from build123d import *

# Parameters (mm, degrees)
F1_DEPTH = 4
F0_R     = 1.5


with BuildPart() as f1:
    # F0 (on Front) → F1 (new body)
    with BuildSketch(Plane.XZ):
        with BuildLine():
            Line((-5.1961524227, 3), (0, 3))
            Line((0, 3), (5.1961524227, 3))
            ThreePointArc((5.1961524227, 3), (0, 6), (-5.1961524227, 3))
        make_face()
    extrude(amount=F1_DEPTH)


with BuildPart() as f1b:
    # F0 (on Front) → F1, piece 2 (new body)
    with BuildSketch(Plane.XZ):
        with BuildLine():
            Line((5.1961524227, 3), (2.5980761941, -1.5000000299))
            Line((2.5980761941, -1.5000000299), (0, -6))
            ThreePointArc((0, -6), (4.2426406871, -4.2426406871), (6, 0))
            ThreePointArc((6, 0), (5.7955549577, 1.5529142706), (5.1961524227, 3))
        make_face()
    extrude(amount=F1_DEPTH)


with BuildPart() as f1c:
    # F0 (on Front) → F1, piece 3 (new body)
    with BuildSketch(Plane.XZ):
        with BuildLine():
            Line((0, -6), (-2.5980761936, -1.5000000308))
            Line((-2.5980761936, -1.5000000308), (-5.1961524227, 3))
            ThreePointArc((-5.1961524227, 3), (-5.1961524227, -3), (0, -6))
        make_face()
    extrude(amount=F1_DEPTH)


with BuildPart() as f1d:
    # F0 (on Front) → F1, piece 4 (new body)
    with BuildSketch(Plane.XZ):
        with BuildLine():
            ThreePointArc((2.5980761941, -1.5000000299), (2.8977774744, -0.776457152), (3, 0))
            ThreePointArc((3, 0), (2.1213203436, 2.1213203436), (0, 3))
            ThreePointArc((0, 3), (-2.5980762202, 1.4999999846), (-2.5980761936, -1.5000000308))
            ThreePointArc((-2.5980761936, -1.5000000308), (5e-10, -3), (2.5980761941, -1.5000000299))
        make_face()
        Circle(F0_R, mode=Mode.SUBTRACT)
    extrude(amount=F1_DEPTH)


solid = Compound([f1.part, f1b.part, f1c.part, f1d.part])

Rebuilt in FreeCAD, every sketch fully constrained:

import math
import FreeCAD as App
import Part
import Sketcher

V = App.Vector
Q = App.Units.Quantity

doc = App.newDocument("Part")
params = doc.addObject("Spreadsheet::Sheet", "Params")
for row, (alias, value) in enumerate([
    ("sketch1_radius", "6 mm"),
    ("pad1_length", "4 mm"),
    ("sketch2_radius", "6 mm"),
    ("pad2_length", "4 mm"),
    ("sketch3_radius", "6 mm"),
    ("pad3_length", "4 mm"),
    ("sketch4_diameter", "3 mm"),
    ("sketch4_radius", "3 mm"),
    ("pad4_length", "4 mm"),
], start=1):
    params.set(f"A{row}", alias)
    params.set(f"B{row}", "=" + value)
    params.setAlias(f"B{row}", alias)

body = doc.addObject("PartDesign::Body", "Body")

sketch1 = body.newObject("Sketcher::SketchObject", "Sketch")
sketch1.AttachmentSupport = (doc.getObject("XZ_Plane"), [""])
sketch1.MapMode = "FlatFace"
sketch1.addGeometry([
    Part.LineSegment(V(-5, 3, 0), V(5, 3, 0)),
    Part.ArcOfCircle(Part.Circle(V(0, 0, 0), V(0, 0, 1), 6), math.radians(30), math.radians(150)),
], False)
sketch1.addConstraint([
    Sketcher.Constraint("Coincident", 0, 1, 1, 2),
    Sketcher.Constraint("Coincident", 1, 1, 0, 2),
    Sketcher.Constraint("Horizontal", 0),
    Sketcher.Constraint("Coincident", 1, 3, -1, 1),
    Sketcher.Constraint("Radius", 1, Q("6 mm")),
    Sketcher.Constraint("DistanceY", -1, 1, 0, 1, Q("3 mm")),
])
sketch1.setExpression("Constraints[4]", "Params.sketch1_radius")
pad1 = body.newObject("PartDesign::Pad", "Pad")
pad1.Profile = sketch1
pad1.setExpression("Length", "Params.pad1_length")
body2 = doc.addObject("PartDesign::Body", "Body001")

sketch2 = body2.newObject("Sketcher::SketchObject", "Sketch001")
sketch2.AttachmentSupport = (doc.getObject("XZ_Plane001"), [""])
sketch2.MapMode = "FlatFace"
sketch2.addGeometry([
    Part.LineSegment(V(5.2, 3, 0), V(2.6, -1.5, 0)),
    Part.LineSegment(V(2.6, -1.5, 0), V(0, -6, 0)),
    Part.ArcOfCircle(Part.Circle(V(0, 0, 0), V(0, 0, 1), 6), math.radians(-90), math.radians(0)),
    Part.ArcOfCircle(Part.Circle(V(0, 0, 0), V(0, 0, 1), 6), math.radians(0), math.radians(30)),
], False)
sketch2.addConstraint([
    Sketcher.Constraint("Coincident", 0, 2, 1, 1),
    Sketcher.Constraint("Coincident", 1, 2, 2, 1),
    Sketcher.Constraint("Tangent", 2, 2, 3, 1),
    Sketcher.Constraint("Coincident", 3, 2, 0, 1),
    Sketcher.Constraint("Coincident", 2, 3, -1, 1),
    Sketcher.Constraint("Equal", 2, 3),
    Sketcher.Constraint("PointOnObject", 1, 2, -2),
    Sketcher.Constraint("PointOnObject", 2, 2, -1),
    Sketcher.Constraint("Parallel", 0, 1),
    Sketcher.Constraint("Equal", 0, 1),
    Sketcher.Constraint("Radius", 2, Q("6 mm")),
    Sketcher.Constraint("Angle", 0, Q("-120 deg")),
])
sketch2.setExpression("Constraints[10]", "Params.sketch2_radius")
pad2 = body2.newObject("PartDesign::Pad", "Pad001")
pad2.Profile = sketch2
pad2.setExpression("Length", "Params.pad2_length")
body3 = doc.addObject("PartDesign::Body", "Body002")

sketch3 = body3.newObject("Sketcher::SketchObject", "Sketch002")
sketch3.AttachmentSupport = (doc.getObject("XZ_Plane002"), [""])
sketch3.MapMode = "FlatFace"
sketch3.addGeometry([
    Part.LineSegment(V(0, -6, 0), V(-3, -2, 0)),
    Part.LineSegment(V(-3, -2, 0), V(-5, 3, 0)),
    Part.ArcOfCircle(Part.Circle(V(0, 0, 0), V(0, 0, 1), 6), math.radians(150), math.radians(270)),
], False)
sketch3.addConstraint([
    Sketcher.Constraint("Coincident", 0, 2, 1, 1),
    Sketcher.Constraint("Coincident", 1, 2, 2, 1),
    Sketcher.Constraint("Coincident", 2, 2, 0, 1),
    Sketcher.Constraint("Coincident", 2, 3, -1, 1),
    Sketcher.Constraint("PointOnObject", 2, 2, -2),
    Sketcher.Constraint("Parallel", 0, 1),
    Sketcher.Constraint("Equal", 0, 1),
    Sketcher.Constraint("Radius", 2, Q("6 mm")),
    Sketcher.Constraint("Angle", 0, Q("120 deg")),
])
sketch3.setExpression("Constraints[7]", "Params.sketch3_radius")
pad3 = body3.newObject("PartDesign::Pad", "Pad002")
pad3.Profile = sketch3
pad3.setExpression("Length", "Params.pad3_length")
body4 = doc.addObject("PartDesign::Body", "Body003")

sketch4 = body4.newObject("Sketcher::SketchObject", "Sketch003")
sketch4.AttachmentSupport = (doc.getObject("XZ_Plane003"), [""])
sketch4.MapMode = "FlatFace"
sketch4.addGeometry([
    Part.ArcOfCircle(Part.Circle(V(0, 0, 0), V(0, 0, 1), 3), math.radians(-30), math.radians(0)),
    Part.ArcOfCircle(Part.Circle(V(0, 0, 0), V(0, 0, 1), 3), math.radians(0), math.radians(90)),
    Part.ArcOfCircle(Part.Circle(V(0, 0, 0), V(0, 0, 1), 3), math.radians(90), math.radians(210)),
    Part.ArcOfCircle(Part.Circle(V(0, 0, 0), V(0, 0, 1), 3), math.radians(-150), math.radians(-30)),
    Part.Circle(V(0, 0, 0), V(0, 0, 1), 1.5),
], False)
sketch4.addConstraint([
    Sketcher.Constraint("Tangent", 0, 2, 1, 1),
    Sketcher.Constraint("Tangent", 1, 2, 2, 1),
    Sketcher.Constraint("Tangent", 2, 2, 3, 1),
    Sketcher.Constraint("Tangent", 3, 2, 0, 1),
    Sketcher.Constraint("Coincident", 0, 3, -1, 1),
    Sketcher.Constraint("Coincident", 4, 3, -1, 1),
    Sketcher.Constraint("Equal", 0, 1),
    Sketcher.Constraint("PointOnObject", 0, 2, -1),
    Sketcher.Constraint("PointOnObject", 1, 2, -2),
    Sketcher.Constraint("Horizontal", 2, 2, 3, 2),
    Sketcher.Constraint("Diameter", 4, Q("3 mm")),
    Sketcher.Constraint("Radius", 0, Q("3 mm")),
    Sketcher.Constraint("DistanceY", 2, 2, -1, 1, Q("1.5 mm")),
])
sketch4.setExpression("Constraints[10]", "Params.sketch4_diameter")
sketch4.setExpression("Constraints[11]", "Params.sketch4_radius")
pad4 = body4.newObject("PartDesign::Pad", "Pad003")
pad4.Profile = sketch4
pad4.setExpression("Length", "Params.pad4_length")

doc.recompute()
